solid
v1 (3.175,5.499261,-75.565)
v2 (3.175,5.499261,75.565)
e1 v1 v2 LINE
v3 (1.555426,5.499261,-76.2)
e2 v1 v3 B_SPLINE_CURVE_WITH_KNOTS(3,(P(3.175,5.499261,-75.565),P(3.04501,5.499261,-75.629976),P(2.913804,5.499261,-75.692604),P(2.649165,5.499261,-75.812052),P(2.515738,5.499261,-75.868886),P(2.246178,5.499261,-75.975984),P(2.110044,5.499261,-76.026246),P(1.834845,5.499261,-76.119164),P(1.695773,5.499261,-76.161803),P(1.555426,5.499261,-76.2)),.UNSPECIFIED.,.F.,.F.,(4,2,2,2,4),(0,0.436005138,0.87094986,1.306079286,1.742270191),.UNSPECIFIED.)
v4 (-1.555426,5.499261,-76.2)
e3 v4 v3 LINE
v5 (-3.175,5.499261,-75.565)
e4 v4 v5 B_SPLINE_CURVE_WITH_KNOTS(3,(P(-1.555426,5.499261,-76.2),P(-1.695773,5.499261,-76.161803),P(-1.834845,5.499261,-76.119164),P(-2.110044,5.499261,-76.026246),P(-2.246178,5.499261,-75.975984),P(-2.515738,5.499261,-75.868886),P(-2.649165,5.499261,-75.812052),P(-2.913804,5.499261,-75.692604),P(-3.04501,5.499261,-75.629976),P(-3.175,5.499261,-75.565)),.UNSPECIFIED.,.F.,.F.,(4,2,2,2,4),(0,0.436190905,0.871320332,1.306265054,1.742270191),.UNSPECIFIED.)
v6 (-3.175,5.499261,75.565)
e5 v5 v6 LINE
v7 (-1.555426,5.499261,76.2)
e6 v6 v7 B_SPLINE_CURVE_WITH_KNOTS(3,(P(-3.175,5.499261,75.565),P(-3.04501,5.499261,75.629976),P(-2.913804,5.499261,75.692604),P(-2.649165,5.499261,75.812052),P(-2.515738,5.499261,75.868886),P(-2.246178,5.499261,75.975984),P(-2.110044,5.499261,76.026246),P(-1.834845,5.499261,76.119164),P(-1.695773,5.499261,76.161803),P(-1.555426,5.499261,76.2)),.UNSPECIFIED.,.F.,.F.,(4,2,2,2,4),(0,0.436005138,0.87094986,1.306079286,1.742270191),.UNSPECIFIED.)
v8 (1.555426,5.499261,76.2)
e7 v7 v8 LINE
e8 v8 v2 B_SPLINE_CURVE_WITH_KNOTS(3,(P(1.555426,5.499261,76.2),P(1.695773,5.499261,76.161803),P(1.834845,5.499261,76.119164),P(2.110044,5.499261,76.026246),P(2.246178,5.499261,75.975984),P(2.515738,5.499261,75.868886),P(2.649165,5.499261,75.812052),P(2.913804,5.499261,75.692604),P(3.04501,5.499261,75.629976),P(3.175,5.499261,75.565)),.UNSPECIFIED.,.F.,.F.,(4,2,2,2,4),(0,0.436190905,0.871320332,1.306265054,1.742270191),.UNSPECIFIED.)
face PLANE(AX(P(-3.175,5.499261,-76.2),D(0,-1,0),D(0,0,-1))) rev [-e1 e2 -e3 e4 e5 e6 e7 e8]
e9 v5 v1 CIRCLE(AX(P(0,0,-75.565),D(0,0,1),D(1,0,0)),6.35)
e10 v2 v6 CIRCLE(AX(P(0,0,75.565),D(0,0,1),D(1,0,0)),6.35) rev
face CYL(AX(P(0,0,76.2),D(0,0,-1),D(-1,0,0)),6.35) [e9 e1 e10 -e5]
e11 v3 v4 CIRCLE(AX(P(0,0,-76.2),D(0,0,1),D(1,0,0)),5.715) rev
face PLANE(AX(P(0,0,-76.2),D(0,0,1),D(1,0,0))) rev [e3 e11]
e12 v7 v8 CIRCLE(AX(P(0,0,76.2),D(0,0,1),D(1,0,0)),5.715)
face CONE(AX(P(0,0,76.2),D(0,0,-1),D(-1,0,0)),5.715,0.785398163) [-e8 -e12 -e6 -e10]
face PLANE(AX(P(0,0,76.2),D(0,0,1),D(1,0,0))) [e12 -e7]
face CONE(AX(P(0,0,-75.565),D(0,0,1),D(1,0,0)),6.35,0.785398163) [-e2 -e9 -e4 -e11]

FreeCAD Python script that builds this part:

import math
import FreeCAD as App
import Part
import Sketcher
Q = App.Units.Quantity


def edges_at(feature, points):
    """Names of the edges that pass closest to the given points."""
    edges = feature.Shape.Edges
    near = lambda p: min(range(len(edges)), key=lambda i: edges[i].distToShape(Part.Vertex(*p))[0])
    return sorted({f"Edge{near(p) + 1}" for p in points})

doc = App.newDocument("Part")
body = doc.addObject("PartDesign::Body", "Body")

# Sketch on XY plane
sketch1 = doc.addObject("Sketcher::SketchObject", "Sketch")
body.addObject(sketch1)
sketch1.AttachmentSupport = (doc.XY_Plane, [""])
sketch1.MapMode = "FlatFace"
sketch1.addGeometry(Part.Circle(App.Vector(0, 0, 0), App.Vector(0, 0, 1), 6.35), False)
sketch1.addConstraint(Sketcher.Constraint("Coincident", 0, 3, -1, 1))
sketch1.addConstraint(Sketcher.Constraint("Diameter", 0, Q("0.5 in")))
pad1 = doc.addObject("PartDesign::Pad", "Pad")
body.addObject(pad1)
pad1.Profile = sketch1
pad1.Type = "TwoLengths"
pad1.Length = Q("3 in")
pad1.Length2 = Q("3 in")

# Sketch on XY plane
sketch2 = doc.addObject("Sketcher::SketchObject", "Sketch001")
body.addObject(sketch2)
sketch2.AttachmentSupport = (doc.XY_Plane, [""])
sketch2.MapMode = "FlatFace"
sketch2.addGeometry(Part.LineSegment(App.Vector(-3.175, 5.499261, 0), App.Vector(3.175, 5.499261, 0)), False)
sketch2.addGeometry(Part.ArcOfCircle(Part.Circle(App.Vector(0, 0, 0), App.Vector(0, 0, 1), 6.35), math.radians(60), math.radians(120)), False)
sketch2.addConstraint(Sketcher.Constraint("Coincident", 0, 1, 1, 2))
sketch2.addConstraint(Sketcher.Constraint("Coincident", 1, 1, 0, 2))
sketch2.addConstraint(Sketcher.Constraint("Horizontal", 0))
sketch2.addConstraint(Sketcher.Constraint("Coincident", 1, 3, -1, 1))
sketch2.addConstraint(Sketcher.Constraint("Radius", 1, Q("0.25 in")))
sketch2.addConstraint(Sketcher.Constraint("DistanceX", 0, 1, 0, 2, Q("0.25 in")))
pocket1 = doc.addObject("PartDesign::Pocket", "Pocket")
body.addObject(pocket1)
pocket1.Profile = sketch2
pocket1.Type = "ThroughAll"
pocket1.Midplane = True
doc.recompute()

chamfer = doc.addObject("PartDesign::Chamfer", "Chamfer")
body.addObject(chamfer)
chamfer.Base = (pocket1, edges_at(pocket1, [(0, -6.35, -76.2), (0, -6.35, 76.2)]))
chamfer.Size = Q("0.025 in")

doc.recompute()
